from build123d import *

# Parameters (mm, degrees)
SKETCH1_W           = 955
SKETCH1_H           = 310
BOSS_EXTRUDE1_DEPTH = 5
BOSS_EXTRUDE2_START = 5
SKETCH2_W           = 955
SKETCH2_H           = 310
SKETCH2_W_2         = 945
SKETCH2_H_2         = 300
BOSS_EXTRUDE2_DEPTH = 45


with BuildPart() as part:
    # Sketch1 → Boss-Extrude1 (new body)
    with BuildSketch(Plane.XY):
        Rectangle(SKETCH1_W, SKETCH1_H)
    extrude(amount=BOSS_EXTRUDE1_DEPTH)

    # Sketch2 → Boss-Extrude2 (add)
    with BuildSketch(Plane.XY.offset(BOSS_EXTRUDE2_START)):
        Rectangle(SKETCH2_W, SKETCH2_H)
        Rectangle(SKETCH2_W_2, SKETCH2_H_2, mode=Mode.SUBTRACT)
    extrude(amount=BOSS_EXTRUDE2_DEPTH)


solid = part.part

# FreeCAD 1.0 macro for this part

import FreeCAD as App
import Part
import Sketcher

V = App.Vector
Q = App.Units.Quantity

doc = App.newDocument("Part")
body = doc.addObject("PartDesign::Body", "Body")

# Sketch on XY plane
sketch1 = doc.addObject("Sketcher::SketchObject", "Sketch")
body.addObject(sketch1)
sketch1.AttachmentSupport = (doc.XY_Plane, [""])
sketch1.MapMode = "FlatFace"
sketch1.addGeometry([
    Part.LineSegment(V(-477.5, 155, 0), V(-477.5, -155, 0)),
    Part.LineSegment(V(-477.5, -155, 0), V(477.5, -155, 0)),
    Part.LineSegment(V(477.5, -155, 0), V(477.5, 155, 0)),
    Part.LineSegment(V(477.5, 155, 0), V(-477.5, 155, 0)),
], False)
sketch1.addConstraint([
    Sketcher.Constraint("Coincident", 0, 2, 1, 1),
    Sketcher.Constraint("Coincident", 1, 2, 2, 1),
    Sketcher.Constraint("Coincident", 2, 2, 3, 1),
    Sketcher.Constraint("Coincident", 3, 2, 0, 1),
    Sketcher.Constraint("Vertical", 0),
    Sketcher.Constraint("Horizontal", 1),
    Sketcher.Constraint("Vertical", 2),
    Sketcher.Constraint("Horizontal", 3),
    Sketcher.Constraint("Symmetric", 0, 2, 2, 2, -1, 1),
    Sketcher.Constraint("DistanceX", 1, 1, 1, 2, Q("955 mm")),
    Sketcher.Constraint("DistanceY", 0, 2, 0, 1, Q("310 mm")),
])
pad1 = doc.addObject("PartDesign::Pad", "Pad")
body.addObject(pad1)
pad1.Profile = sketch1
pad1.Length = 5

# Sketch on XY plane
sketch2 = doc.addObject("Sketcher::SketchObject", "Sketch001")
body.addObject(sketch2)
sketch2.AttachmentSupport = (doc.XY_Plane, [""])
sketch2.MapMode = "FlatFace"
sketch2.AttachmentOffset = App.Placement(V(0, 0, 5), App.Rotation())
sketch2.addGeometry([
    Part.LineSegment(V(-477.5, 155, 0), V(-477.5, -155, 0)),  # 0
    Part.LineSegment(V(-477.5, -155, 0), V(477.5, -155, 0)),  # 1
    Part.LineSegment(V(477.5, -155, 0), V(477.5, 155, 0)),  # 2
    Part.LineSegment(V(477.5, 155, 0), V(-477.5, 155, 0)),  # 3
    Part.LineSegment(V(472.5, -150, 0), V(-472.5, -150, 0)),  # 4
    Part.LineSegment(V(-472.5, -150, 0), V(-472.5, 150, 0)),  # 5
    Part.LineSegment(V(-472.5, 150, 0), V(472.5, 150, 0)),  # 6
    Part.LineSegment(V(472.5, 150, 0), V(472.5, -150, 0)),  # 7
], False)
sketch2.addConstraint([
    Sketcher.Constraint("Coincident", 0, 2, 1, 1),
    Sketcher.Constraint("Coincident", 1, 2, 2, 1),
    Sketcher.Constraint("Coincident", 2, 2, 3, 1),
    Sketcher.Constraint("Coincident", 3, 2, 0, 1),
    Sketcher.Constraint("Coincident", 4, 2, 5, 1),
    Sketcher.Constraint("Coincident", 5, 2, 6, 1),
    Sketcher.Constraint("Coincident", 6, 2, 7, 1),
    Sketcher.Constraint("Coincident", 7, 2, 4, 1),
    Sketcher.Constraint("Vertical", 0),
    Sketcher.Constraint("Horizontal", 1),
    Sketcher.Constraint("Vertical", 2),
    Sketcher.Constraint("Horizontal", 3),
    Sketcher.Constraint("Horizontal", 4),
    Sketcher.Constraint("Vertical", 5),
    Sketcher.Constraint("Horizontal", 6),
    Sketcher.Constraint("Vertical", 7),
    Sketcher.Constraint("Symmetric", 0, 2, 2, 2, -1, 1),
    Sketcher.Constraint("Symmetric", 4, 2, 6, 2, -1, 1),
    Sketcher.Constraint("DistanceX", 1, 1, 1, 2, Q("955 mm")),
    Sketcher.Constraint("DistanceX", 4, 2, 4, 1, Q("945 mm")),
    Sketcher.Constraint("DistanceY", 0, 2, 0, 1, Q("310 mm")),
    Sketcher.Constraint("DistanceY", 5, 1, 5, 2, Q("300 mm")),
])
pad2 = doc.addObject("PartDesign::Pad", "Pad001")
body.addObject(pad2)
pad2.Profile = sketch2
pad2.Length = 45

doc.recompute()
